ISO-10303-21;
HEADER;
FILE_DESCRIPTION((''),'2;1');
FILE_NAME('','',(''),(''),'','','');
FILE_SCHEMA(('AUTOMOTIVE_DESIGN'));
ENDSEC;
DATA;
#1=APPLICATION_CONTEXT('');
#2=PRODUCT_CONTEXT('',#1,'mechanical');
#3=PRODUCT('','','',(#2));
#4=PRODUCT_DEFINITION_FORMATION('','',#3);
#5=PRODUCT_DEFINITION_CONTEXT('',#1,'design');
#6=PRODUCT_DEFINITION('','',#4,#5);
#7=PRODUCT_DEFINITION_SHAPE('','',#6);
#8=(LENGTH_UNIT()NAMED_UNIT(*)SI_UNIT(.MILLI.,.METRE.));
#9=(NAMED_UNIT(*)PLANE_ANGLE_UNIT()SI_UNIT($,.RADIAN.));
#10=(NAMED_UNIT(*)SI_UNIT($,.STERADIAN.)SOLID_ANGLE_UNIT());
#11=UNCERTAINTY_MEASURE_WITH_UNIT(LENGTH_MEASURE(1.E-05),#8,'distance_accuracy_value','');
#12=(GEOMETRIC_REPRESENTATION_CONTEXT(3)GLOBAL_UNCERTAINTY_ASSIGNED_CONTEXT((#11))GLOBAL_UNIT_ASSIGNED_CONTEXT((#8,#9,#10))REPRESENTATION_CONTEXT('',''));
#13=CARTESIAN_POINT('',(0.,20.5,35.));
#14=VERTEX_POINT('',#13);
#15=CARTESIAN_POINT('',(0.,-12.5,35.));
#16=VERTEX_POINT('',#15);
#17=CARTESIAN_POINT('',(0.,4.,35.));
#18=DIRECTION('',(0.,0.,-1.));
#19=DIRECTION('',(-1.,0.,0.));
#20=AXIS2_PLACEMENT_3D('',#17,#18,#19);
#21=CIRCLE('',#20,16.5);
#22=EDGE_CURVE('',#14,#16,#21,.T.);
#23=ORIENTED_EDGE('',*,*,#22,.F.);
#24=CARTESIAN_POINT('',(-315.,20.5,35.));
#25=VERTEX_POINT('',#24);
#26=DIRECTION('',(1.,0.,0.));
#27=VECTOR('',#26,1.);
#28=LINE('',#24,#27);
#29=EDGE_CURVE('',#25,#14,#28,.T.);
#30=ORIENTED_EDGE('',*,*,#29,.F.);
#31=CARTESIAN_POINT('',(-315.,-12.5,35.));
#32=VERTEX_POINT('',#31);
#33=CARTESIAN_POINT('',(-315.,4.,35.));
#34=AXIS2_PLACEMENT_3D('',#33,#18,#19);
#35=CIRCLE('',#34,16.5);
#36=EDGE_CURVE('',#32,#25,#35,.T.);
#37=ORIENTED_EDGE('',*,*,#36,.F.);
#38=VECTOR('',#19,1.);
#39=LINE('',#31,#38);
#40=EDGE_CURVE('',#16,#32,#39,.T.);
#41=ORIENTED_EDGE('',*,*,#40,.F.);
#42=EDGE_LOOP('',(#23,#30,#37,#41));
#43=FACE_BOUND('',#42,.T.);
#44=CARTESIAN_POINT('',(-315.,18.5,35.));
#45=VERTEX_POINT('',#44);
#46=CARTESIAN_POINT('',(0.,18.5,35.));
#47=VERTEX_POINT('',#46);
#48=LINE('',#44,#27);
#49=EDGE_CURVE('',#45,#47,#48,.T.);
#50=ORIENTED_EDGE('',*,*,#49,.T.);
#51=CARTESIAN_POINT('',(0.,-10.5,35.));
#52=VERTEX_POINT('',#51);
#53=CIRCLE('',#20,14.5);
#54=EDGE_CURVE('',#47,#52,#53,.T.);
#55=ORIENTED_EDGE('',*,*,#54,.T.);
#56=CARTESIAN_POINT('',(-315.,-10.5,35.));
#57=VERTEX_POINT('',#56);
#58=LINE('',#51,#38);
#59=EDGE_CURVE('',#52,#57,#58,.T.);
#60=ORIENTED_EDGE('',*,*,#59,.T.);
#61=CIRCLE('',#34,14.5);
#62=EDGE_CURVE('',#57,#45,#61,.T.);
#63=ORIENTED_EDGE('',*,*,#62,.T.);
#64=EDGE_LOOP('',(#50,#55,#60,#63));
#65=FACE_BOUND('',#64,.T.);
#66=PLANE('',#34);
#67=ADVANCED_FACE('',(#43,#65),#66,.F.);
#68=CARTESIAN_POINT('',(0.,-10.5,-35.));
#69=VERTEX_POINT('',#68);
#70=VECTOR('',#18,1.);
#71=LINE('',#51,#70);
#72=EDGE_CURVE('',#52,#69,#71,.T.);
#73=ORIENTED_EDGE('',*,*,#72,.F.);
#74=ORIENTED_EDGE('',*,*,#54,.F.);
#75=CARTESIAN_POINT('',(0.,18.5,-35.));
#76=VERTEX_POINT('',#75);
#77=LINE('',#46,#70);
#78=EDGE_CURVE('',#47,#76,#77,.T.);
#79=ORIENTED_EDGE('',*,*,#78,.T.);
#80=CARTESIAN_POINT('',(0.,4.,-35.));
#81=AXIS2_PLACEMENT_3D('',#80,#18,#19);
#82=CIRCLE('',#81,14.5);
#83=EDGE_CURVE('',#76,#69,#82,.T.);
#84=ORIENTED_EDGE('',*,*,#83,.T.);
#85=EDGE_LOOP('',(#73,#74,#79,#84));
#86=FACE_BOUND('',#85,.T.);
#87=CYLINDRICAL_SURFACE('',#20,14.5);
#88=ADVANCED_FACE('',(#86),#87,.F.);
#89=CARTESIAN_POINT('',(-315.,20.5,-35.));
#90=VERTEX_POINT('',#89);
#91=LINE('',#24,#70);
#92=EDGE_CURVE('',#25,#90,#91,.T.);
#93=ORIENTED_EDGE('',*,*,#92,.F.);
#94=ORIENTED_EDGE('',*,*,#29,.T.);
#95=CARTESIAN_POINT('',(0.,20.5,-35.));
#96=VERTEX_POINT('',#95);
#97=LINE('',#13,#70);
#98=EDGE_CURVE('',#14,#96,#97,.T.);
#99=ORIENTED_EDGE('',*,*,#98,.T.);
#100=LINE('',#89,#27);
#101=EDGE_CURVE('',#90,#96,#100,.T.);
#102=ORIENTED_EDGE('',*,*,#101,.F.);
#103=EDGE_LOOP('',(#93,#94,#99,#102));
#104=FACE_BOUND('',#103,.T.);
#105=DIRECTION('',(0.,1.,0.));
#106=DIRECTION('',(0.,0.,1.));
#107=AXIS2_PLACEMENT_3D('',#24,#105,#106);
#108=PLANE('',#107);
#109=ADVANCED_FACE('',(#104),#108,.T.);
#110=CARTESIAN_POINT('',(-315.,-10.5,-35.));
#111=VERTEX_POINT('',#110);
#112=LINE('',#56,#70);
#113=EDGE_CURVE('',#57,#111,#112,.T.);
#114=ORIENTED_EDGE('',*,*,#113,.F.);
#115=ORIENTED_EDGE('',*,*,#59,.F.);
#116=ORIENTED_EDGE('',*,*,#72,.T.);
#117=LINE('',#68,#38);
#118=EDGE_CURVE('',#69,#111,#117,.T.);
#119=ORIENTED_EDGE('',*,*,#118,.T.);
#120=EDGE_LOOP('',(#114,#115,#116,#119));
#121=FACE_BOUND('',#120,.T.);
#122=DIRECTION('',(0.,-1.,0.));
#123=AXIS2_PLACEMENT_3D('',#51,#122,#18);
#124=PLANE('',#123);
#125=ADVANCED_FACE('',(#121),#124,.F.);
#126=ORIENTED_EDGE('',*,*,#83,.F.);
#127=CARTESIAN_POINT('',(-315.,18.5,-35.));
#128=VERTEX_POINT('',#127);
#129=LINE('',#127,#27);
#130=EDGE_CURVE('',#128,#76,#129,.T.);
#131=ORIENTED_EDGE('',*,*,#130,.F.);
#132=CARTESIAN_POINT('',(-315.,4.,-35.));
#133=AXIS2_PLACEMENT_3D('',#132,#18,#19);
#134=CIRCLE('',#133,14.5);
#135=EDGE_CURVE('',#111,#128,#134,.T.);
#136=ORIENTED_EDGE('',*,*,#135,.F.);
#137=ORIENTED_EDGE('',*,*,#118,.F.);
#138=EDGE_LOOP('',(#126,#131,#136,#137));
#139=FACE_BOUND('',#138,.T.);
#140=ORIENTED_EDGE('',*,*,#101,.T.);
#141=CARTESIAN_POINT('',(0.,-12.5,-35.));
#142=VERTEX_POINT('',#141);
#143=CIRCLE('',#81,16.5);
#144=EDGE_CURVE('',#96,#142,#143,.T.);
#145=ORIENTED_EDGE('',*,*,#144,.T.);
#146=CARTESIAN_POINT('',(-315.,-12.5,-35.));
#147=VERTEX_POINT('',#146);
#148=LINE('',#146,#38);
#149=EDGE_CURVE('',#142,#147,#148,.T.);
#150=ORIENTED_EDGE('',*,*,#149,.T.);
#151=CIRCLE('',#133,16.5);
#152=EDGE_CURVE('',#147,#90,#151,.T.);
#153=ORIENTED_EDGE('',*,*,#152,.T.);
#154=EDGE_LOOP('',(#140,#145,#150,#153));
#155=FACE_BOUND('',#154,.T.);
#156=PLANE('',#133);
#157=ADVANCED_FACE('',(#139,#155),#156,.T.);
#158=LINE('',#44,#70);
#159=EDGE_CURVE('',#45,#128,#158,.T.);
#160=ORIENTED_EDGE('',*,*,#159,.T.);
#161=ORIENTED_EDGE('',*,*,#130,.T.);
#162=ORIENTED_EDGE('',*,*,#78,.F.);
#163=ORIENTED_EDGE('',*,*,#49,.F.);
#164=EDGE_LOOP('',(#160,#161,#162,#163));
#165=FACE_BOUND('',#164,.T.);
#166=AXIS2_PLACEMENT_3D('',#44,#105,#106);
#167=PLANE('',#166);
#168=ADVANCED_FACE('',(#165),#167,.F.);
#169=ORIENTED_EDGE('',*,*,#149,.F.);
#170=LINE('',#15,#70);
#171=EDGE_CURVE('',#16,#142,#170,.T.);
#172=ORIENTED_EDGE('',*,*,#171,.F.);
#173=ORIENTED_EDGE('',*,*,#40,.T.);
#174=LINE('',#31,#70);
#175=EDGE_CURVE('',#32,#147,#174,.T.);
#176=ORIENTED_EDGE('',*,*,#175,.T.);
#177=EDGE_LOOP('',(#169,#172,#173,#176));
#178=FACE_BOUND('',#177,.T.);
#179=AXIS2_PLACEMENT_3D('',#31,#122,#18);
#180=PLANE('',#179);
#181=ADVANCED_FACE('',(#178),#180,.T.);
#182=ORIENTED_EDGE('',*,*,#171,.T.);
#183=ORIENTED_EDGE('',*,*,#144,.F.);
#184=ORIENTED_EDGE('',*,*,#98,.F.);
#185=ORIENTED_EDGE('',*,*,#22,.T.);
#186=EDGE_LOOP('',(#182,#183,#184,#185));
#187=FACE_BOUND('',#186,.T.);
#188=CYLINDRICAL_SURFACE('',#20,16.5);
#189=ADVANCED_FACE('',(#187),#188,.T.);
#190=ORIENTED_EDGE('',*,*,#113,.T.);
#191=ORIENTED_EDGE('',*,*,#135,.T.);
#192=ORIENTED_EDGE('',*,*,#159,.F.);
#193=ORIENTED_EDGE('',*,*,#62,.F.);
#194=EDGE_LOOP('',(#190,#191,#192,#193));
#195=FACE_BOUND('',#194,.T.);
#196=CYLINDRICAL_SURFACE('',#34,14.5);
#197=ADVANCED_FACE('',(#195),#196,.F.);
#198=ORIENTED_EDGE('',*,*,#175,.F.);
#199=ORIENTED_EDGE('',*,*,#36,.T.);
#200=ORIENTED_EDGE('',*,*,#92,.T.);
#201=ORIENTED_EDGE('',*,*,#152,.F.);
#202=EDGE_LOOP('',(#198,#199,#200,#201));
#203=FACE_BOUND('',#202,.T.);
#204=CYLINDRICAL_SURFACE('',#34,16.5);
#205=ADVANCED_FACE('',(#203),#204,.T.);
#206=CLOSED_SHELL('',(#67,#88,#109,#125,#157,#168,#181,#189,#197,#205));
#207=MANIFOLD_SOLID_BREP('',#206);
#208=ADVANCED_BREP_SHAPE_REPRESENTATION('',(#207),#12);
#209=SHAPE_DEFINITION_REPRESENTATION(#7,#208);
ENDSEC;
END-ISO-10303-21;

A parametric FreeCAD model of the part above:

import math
import FreeCAD as App
import Part
import Sketcher
from FreeCAD import Vector

doc = App.newDocument("Part")
body = doc.addObject("PartDesign::Body", "Body")

# Sketch on XY plane
sketch1 = doc.addObject("Sketcher::SketchObject", "Sketch")
body.addObject(sketch1)
sketch1.AttachmentSupport = (doc.XY_Plane, [""])
sketch1.MapMode = "FlatFace"
sketch1.addGeometry([
    Part.LineSegment(Vector(-315, -12, 0), Vector(0, -12, 0)),  # 0
    Part.ArcOfCircle(Part.Circle(Vector(0, 4, 0), Vector(0, 0, 1), 16), math.radians(-90), math.radians(90)),  # 1
    Part.LineSegment(Vector(0, 20, 0), Vector(-315, 20, 0)),  # 2
    Part.ArcOfCircle(Part.Circle(Vector(-315, 4, 0), Vector(0, 0, 1), 16), math.radians(90), math.radians(270)),  # 3
    Part.LineSegment(Vector(0, -10, 0), Vector(-315, -10, 0)),  # 4
    Part.ArcOfCircle(Part.Circle(Vector(-315, 4, 0), Vector(0, 0, 1), 14), math.radians(90), math.radians(270)),  # 5
    Part.LineSegment(Vector(-315, 18, 0), Vector(0, 18, 0)),  # 6
    Part.ArcOfCircle(Part.Circle(Vector(0, 4, 0), Vector(0, 0, 1), 14), math.radians(-90), math.radians(90)),  # 7
], False)
sketch1.addConstraint([
    Sketcher.Constraint("Tangent", 0, 2, 1, 1),
    Sketcher.Constraint("Tangent", 1, 2, 2, 1),
    Sketcher.Constraint("Tangent", 2, 2, 3, 1),
    Sketcher.Constraint("Tangent", 3, 2, 0, 1),
    Sketcher.Constraint("Tangent", 4, 2, 5, 2),
    Sketcher.Constraint("Tangent", 5, 1, 6, 1),
    Sketcher.Constraint("Tangent", 6, 2, 7, 2),
    Sketcher.Constraint("Tangent", 7, 1, 4, 1),
    Sketcher.Constraint("Horizontal", 0),
    Sketcher.Constraint("Horizontal", 2),
    Sketcher.Constraint("Horizontal", 4),
    Sketcher.Constraint("Horizontal", 6),
    Sketcher.Constraint("Coincident", 5, 3, 3, 3),
    Sketcher.Constraint("PointOnObject", 1, 3, -2),
    Sketcher.Constraint("PointOnObject", 7, 3, -2),
    Sketcher.Constraint("Radius", 1, 16.5),
    Sketcher.Constraint("Radius", 5, 14.5),
    Sketcher.Constraint("DistanceX", 0, 1, 0, 2, 315.0),
    Sketcher.Constraint("DistanceY", -1, 1, 1, 3, 4.0),
])
pad1 = doc.addObject("PartDesign::Pad", "Pad")
body.addObject(pad1)
pad1.Profile = sketch1
pad1.Length = 70
pad1.Midplane = True

doc.recompute()
